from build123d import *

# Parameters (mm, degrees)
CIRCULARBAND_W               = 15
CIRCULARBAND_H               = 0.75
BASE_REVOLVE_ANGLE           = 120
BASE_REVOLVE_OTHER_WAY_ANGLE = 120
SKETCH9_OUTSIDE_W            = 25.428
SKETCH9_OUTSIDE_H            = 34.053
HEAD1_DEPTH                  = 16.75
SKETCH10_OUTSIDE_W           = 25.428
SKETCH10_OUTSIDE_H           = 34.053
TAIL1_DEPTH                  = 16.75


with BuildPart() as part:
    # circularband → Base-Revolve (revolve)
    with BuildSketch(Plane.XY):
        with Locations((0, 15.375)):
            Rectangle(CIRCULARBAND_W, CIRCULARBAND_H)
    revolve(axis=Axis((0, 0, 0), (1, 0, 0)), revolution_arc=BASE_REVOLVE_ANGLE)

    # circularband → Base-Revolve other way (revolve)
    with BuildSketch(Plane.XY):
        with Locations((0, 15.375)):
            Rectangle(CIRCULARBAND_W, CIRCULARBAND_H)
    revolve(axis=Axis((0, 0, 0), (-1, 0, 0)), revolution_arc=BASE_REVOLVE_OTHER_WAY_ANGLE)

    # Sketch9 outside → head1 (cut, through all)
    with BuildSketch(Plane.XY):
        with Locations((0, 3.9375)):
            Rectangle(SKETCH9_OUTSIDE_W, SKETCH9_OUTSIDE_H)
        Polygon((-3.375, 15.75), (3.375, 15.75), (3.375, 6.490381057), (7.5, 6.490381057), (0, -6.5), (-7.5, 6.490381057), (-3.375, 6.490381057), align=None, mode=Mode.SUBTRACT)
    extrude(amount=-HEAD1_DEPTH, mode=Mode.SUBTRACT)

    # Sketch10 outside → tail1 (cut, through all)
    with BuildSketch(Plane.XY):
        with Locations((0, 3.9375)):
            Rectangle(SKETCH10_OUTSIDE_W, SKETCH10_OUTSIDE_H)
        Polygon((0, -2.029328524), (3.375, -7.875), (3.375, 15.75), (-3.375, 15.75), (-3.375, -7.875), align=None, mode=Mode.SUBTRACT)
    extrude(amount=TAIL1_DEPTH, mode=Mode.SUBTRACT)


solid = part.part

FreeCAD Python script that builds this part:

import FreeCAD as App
import Part
import Sketcher

V = App.Vector
Q = App.Units.Quantity


def add_polygon(sketch, points):
    """Adds a closed chain of lines whose ends are joined by coincident constraints."""
    first, n = sketch.GeometryCount, len(points)
    for a, b in zip(points, points[1:] + points[:1]):
        sketch.addGeometry(Part.LineSegment(App.Vector(*a, 0), App.Vector(*b, 0)), False)
    for i in range(n):
        sketch.addConstraint(Sketcher.Constraint("Coincident", first + i, 2, first + (i + 1) % n, 1))

doc = App.newDocument("Part")
body = doc.addObject("PartDesign::Body", "Body")

# Sketch on XY plane
sketch1 = body.newObject("Sketcher::SketchObject", "Sketch")
sketch1.AttachmentSupport = (doc.getObject("XY_Plane"), [""])
sketch1.MapMode = "FlatFace"
add_polygon(sketch1, [(-7.5, 15.75), (-7.5, 15), (7.5, 15), (7.5, 15.75)])  # lines 0-3
sketch1.addConstraint(Sketcher.Constraint("Vertical", 0))
sketch1.addConstraint(Sketcher.Constraint("Horizontal", 1))
sketch1.addConstraint(Sketcher.Constraint("Vertical", 2))
sketch1.addConstraint(Sketcher.Constraint("Horizontal", 3))
sketch1.addConstraint(Sketcher.Constraint("DistanceX", 1, 1, 1, 2, Q("15 mm")))
sketch1.addConstraint(Sketcher.Constraint("DistanceY", -1, 1, 0, 2, Q("15 mm")))
sketch1.addConstraint(Sketcher.Constraint("DistanceY", 0, 2, 0, 1, Q("0.75 mm")))
sketch1.addConstraint(Sketcher.Constraint("DistanceX", 0, 2, -1, 1, Q("7.5 mm")))
revolution = body.newObject("PartDesign::Revolution", "Revolution")
revolution.Profile = sketch1
revolution.ReferenceAxis = (sketch1, ["H_Axis"])
revolution.Angle = 120

# Sketch on XY plane
sketch2 = body.newObject("Sketcher::SketchObject", "Sketch001")
sketch2.AttachmentSupport = (doc.getObject("XY_Plane"), [""])
sketch2.MapMode = "FlatFace"
add_polygon(sketch2, [(-7.5, 15.75), (-7.5, 15), (7.5, 15), (7.5, 15.75)])  # lines 0-3
sketch2.addConstraint(Sketcher.Constraint("Vertical", 0))
sketch2.addConstraint(Sketcher.Constraint("Horizontal", 1))
sketch2.addConstraint(Sketcher.Constraint("Vertical", 2))
sketch2.addConstraint(Sketcher.Constraint("Horizontal", 3))
sketch2.addConstraint(Sketcher.Constraint("DistanceX", 1, 1, 1, 2, Q("15 mm")))
sketch2.addConstraint(Sketcher.Constraint("DistanceY", -1, 1, 0, 2, Q("15 mm")))
sketch2.addConstraint(Sketcher.Constraint("DistanceY", 0, 2, 0, 1, Q("0.75 mm")))
sketch2.addConstraint(Sketcher.Constraint("DistanceX", 0, 2, -1, 1, Q("7.5 mm")))
revolution2 = body.newObject("PartDesign::Revolution", "Revolution001")
revolution2.Profile = sketch2
revolution2.ReferenceAxis = (sketch2, ["H_Axis"])
revolution2.Angle = 120
revolution2.Reversed = True

# Sketch on XY plane
sketch3 = body.newObject("Sketcher::SketchObject", "Sketch002")
sketch3.AttachmentSupport = (doc.getObject("XY_Plane"), [""])
sketch3.MapMode = "FlatFace"
add_polygon(sketch3, [(-12.714, 20.964), (-12.714, -13.089), (12.714, -13.089), (12.714, 20.964)])  # lines 0-3
add_polygon(sketch3, [(-3.375, 6.490381), (-3.375, 15.75), (3.375, 15.75), (3.375, 6.490381), (7.5, 6.490381), (0, -6.5), (-7.5, 6.490381)])  # lines 4-10
sketch3.addConstraint(Sketcher.Constraint("Vertical", 0))
sketch3.addConstraint(Sketcher.Constraint("Horizontal", 1))
sketch3.addConstraint(Sketcher.Constraint("Vertical", 2))
sketch3.addConstraint(Sketcher.Constraint("Horizontal", 3))
sketch3.addConstraint(Sketcher.Constraint("Vertical", 4))
sketch3.addConstraint(Sketcher.Constraint("Horizontal", 5))
sketch3.addConstraint(Sketcher.Constraint("Vertical", 6))
sketch3.addConstraint(Sketcher.Constraint("Horizontal", 7))
sketch3.addConstraint(Sketcher.Constraint("Horizontal", 10))
sketch3.addConstraint(Sketcher.Constraint("Symmetric", 7, 2, 9, 2, -2))
sketch3.addConstraint(Sketcher.Constraint("PointOnObject", 8, 2, -2))
sketch3.addConstraint(Sketcher.Constraint("Equal", 7, 10))
sketch3.addConstraint(Sketcher.Constraint("Angle", 8, Q("-120 deg")))
sketch3.addConstraint(Sketcher.Constraint("Distance", 8, Q("15 mm")))
sketch3.addConstraint(Sketcher.Constraint("DistanceX", 5, 1, 5, 2, Q("6.75 mm")))
sketch3.addConstraint(Sketcher.Constraint("DistanceY", 8, 2, -1, 1, Q("6.5 mm")))
sketch3.addConstraint(Sketcher.Constraint("DistanceX", 1, 1, 1, 2, Q("25.428 mm")))
sketch3.addConstraint(Sketcher.Constraint("DistanceY", 0, 2, 0, 1, Q("34.053 mm")))
sketch3.addConstraint(Sketcher.Constraint("DistanceY", -1, 1, 4, 2, Q("15.75 mm")))
sketch3.addConstraint(Sketcher.Constraint("DistanceX", 0, 2, -1, 1, Q("12.714 mm")))
sketch3.addConstraint(Sketcher.Constraint("DistanceY", 0, 2, -1, 1, Q("13.089 mm")))
pocket1 = body.newObject("PartDesign::Pocket", "Pocket")
pocket1.Profile = sketch3
pocket1.Type = "ThroughAll"

# Sketch on XY plane
sketch4 = body.newObject("Sketcher::SketchObject", "Sketch003")
sketch4.AttachmentSupport = (doc.getObject("XY_Plane"), [""])
sketch4.MapMode = "FlatFace"
add_polygon(sketch4, [(-12.714, 20.964), (-12.714, -13.089), (12.714, -13.089), (12.714, 20.964)])  # lines 0-3
add_polygon(sketch4, [(3.375, -7.875), (0, -2.029329), (-3.375, -7.875), (-3.375, 15.75), (3.375, 15.75)])  # lines 4-8
sketch4.addConstraint(Sketcher.Constraint("Vertical", 0))
sketch4.addConstraint(Sketcher.Constraint("Horizontal", 1))
sketch4.addConstraint(Sketcher.Constraint("Vertical", 2))
sketch4.addConstraint(Sketcher.Constraint("Horizontal", 3))
sketch4.addConstraint(Sketcher.Constraint("Vertical", 6))
sketch4.addConstraint(Sketcher.Constraint("Horizontal", 7))
sketch4.addConstraint(Sketcher.Constraint("Vertical", 8))
sketch4.addConstraint(Sketcher.Constraint("Symmetric", 5, 2, 8, 2, -2))
sketch4.addConstraint(Sketcher.Constraint("PointOnObject", 4, 2, -2))
sketch4.addConstraint(Sketcher.Constraint("Angle", 4, Q("120 deg")))
sketch4.addConstraint(Sketcher.Constraint("DistanceX", 7, 1, 7, 2, Q("6.75 mm")))
sketch4.addConstraint(Sketcher.Constraint("DistanceX", 1, 1, 1, 2, Q("25.428 mm")))
sketch4.addConstraint(Sketcher.Constraint("DistanceY", 0, 2, 0, 1, Q("34.053 mm")))
sketch4.addConstraint(Sketcher.Constraint("DistanceY", 6, 1, 6, 2, Q("23.625 mm")))
sketch4.addConstraint(Sketcher.Constraint("DistanceY", -1, 1, 6, 2, Q("15.75 mm")))
sketch4.addConstraint(Sketcher.Constraint("DistanceX", 0, 2, -1, 1, Q("12.714 mm")))
sketch4.addConstraint(Sketcher.Constraint("DistanceY", 0, 2, -1, 1, Q("13.089 mm")))
pocket2 = body.newObject("PartDesign::Pocket", "Pocket001")
pocket2.Profile = sketch4
pocket2.Type = "ThroughAll"
pocket2.Reversed = True

doc.recompute()
